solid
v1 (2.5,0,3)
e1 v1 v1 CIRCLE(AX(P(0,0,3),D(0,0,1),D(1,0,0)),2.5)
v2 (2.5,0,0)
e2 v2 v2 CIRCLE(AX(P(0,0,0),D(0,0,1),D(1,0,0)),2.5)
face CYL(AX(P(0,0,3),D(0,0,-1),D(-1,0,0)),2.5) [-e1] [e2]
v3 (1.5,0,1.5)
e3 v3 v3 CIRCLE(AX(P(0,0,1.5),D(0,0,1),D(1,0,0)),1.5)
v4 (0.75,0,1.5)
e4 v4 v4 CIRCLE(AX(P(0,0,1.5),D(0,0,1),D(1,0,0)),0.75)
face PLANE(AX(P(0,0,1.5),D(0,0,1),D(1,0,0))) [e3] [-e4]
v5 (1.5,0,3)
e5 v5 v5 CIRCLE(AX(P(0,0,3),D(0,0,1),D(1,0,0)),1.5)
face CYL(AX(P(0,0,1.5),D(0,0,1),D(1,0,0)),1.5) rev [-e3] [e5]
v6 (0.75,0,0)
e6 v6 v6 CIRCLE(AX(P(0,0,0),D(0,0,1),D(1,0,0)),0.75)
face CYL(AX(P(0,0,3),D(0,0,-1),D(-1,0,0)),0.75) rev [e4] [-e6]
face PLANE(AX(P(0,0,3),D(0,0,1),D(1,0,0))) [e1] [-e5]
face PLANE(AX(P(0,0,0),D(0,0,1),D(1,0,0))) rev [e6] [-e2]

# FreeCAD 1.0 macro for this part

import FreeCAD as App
import Part
import Sketcher
Q = App.Units.Quantity

doc = App.newDocument("Part")
body = doc.addObject("PartDesign::Body", "Body")

# Sketch on XY plane
sketch1 = body.newObject("Sketcher::SketchObject", "Sketch")
sketch1.AttachmentSupport = (doc.getObject("XY_Plane"), [""])
sketch1.MapMode = "FlatFace"
sketch1.addGeometry([
    Part.Circle(App.Vector(0, 0, 0), App.Vector(0, 0, 1), 2.5),
    Part.Circle(App.Vector(0, 0, 0), App.Vector(0, 0, 1), 0.8),
], False)
sketch1.addConstraint([
    Sketcher.Constraint("Coincident", 0, 3, -1, 1),
    Sketcher.Constraint("Coincident", 1, 3, -1, 1),
    Sketcher.Constraint("Diameter", 0, Q("5 mm")),
    Sketcher.Constraint("Diameter", 1, Q("1.5 mm")),
])
pad1 = body.newObject("PartDesign::Pad", "Pad")
pad1.Profile = sketch1
pad1.Length = 3

# Sketch on XY plane
sketch2 = body.newObject("Sketcher::SketchObject", "Sketch001")
sketch2.AttachmentSupport = (doc.getObject("XY_Plane"), [""])
sketch2.MapMode = "FlatFace"
sketch2.AttachmentOffset = App.Placement(App.Vector(0, 0, 3), App.Rotation())
sketch2.addGeometry(Part.Circle(App.Vector(0, 0, 0), App.Vector(0, 0, 1), 1.5), False)
sketch2.addConstraint([
    Sketcher.Constraint("Coincident", 0, 3, -1, 1),
    Sketcher.Constraint("Diameter", 0, Q("3 mm")),
])
pocket1 = body.newObject("PartDesign::Pocket", "Pocket")
pocket1.Profile = sketch2
pocket1.Length = 1.5

doc.recompute()
